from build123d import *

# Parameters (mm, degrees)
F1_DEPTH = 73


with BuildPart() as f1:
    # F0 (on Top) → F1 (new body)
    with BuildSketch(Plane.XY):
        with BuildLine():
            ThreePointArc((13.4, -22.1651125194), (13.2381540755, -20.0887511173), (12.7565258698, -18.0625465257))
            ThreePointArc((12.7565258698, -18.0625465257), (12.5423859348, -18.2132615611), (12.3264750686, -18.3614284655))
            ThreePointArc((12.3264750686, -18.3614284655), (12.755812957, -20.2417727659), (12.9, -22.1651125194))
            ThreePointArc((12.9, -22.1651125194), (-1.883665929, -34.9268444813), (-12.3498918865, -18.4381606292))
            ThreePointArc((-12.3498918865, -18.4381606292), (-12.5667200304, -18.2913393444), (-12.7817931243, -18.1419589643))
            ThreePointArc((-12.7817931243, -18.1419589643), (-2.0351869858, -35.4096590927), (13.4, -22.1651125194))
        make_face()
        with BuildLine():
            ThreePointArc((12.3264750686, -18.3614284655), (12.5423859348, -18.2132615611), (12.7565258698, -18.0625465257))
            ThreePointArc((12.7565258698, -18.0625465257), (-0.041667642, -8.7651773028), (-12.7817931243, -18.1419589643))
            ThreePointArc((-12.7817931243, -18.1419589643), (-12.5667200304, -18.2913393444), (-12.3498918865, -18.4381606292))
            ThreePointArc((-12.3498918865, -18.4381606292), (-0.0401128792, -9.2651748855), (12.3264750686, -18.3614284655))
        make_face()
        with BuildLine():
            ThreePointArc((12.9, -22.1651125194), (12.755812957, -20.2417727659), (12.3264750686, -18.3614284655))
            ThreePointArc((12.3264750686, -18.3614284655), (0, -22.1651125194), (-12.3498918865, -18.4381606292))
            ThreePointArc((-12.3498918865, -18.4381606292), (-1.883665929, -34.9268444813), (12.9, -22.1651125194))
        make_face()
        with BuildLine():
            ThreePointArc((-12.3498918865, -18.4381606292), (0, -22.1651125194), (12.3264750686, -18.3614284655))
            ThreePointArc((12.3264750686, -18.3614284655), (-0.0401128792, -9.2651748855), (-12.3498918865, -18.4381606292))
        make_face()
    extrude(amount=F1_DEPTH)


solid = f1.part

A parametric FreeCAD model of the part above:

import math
import FreeCAD as App
import Part
import Sketcher

V = App.Vector

doc = App.newDocument("Part")
body = doc.addObject("PartDesign::Body", "Body")

sketch1 = body.newObject("Sketcher::SketchObject", "Sketch")
sketch1.AttachmentSupport = (doc.getObject("XY_Plane"), [""])
sketch1.MapMode = "FlatFace"
sketch1.addGeometry([
    Part.ArcOfCircle(Part.Circle(V(0, -22.165113, 0), V(0, 0, 1), 13.4), math.radians(0), math.radians(17.828065)),
    Part.ArcOfCircle(Part.Circle(V(0, -22.165113, 0), V(0, 0, 1), 13.4), math.radians(17.828065), math.radians(162.528261)),
    Part.ArcOfCircle(Part.Circle(V(0, -22.165113, 0), V(0, 0, 1), 13.4), math.radians(162.528261), math.radians(360)),
], False)
sketch1.addConstraint([
    Sketcher.Constraint("Tangent", 0, 2, 1, 1),
    Sketcher.Constraint("Tangent", 1, 2, 2, 1),
    Sketcher.Constraint("Tangent", 2, 2, 0, 1),
    Sketcher.Constraint("PointOnObject", 0, 3, -2),
    Sketcher.Constraint("Horizontal", 1, 3, 2, 2),
    Sketcher.Constraint("Radius", 0, 13.4),
    Sketcher.Constraint("DistanceY", 1, 2, -1, 1, 18.141959),
    Sketcher.Constraint("DistanceX", 1, 2, 0, 2, 25.538319),
    Sketcher.Constraint("DistanceY", 0, 3, -1, 1, 22.165113),
])
pad1 = body.newObject("PartDesign::Pad", "Pad")
pad1.Profile = sketch1
pad1.Length = 73

doc.recompute()
